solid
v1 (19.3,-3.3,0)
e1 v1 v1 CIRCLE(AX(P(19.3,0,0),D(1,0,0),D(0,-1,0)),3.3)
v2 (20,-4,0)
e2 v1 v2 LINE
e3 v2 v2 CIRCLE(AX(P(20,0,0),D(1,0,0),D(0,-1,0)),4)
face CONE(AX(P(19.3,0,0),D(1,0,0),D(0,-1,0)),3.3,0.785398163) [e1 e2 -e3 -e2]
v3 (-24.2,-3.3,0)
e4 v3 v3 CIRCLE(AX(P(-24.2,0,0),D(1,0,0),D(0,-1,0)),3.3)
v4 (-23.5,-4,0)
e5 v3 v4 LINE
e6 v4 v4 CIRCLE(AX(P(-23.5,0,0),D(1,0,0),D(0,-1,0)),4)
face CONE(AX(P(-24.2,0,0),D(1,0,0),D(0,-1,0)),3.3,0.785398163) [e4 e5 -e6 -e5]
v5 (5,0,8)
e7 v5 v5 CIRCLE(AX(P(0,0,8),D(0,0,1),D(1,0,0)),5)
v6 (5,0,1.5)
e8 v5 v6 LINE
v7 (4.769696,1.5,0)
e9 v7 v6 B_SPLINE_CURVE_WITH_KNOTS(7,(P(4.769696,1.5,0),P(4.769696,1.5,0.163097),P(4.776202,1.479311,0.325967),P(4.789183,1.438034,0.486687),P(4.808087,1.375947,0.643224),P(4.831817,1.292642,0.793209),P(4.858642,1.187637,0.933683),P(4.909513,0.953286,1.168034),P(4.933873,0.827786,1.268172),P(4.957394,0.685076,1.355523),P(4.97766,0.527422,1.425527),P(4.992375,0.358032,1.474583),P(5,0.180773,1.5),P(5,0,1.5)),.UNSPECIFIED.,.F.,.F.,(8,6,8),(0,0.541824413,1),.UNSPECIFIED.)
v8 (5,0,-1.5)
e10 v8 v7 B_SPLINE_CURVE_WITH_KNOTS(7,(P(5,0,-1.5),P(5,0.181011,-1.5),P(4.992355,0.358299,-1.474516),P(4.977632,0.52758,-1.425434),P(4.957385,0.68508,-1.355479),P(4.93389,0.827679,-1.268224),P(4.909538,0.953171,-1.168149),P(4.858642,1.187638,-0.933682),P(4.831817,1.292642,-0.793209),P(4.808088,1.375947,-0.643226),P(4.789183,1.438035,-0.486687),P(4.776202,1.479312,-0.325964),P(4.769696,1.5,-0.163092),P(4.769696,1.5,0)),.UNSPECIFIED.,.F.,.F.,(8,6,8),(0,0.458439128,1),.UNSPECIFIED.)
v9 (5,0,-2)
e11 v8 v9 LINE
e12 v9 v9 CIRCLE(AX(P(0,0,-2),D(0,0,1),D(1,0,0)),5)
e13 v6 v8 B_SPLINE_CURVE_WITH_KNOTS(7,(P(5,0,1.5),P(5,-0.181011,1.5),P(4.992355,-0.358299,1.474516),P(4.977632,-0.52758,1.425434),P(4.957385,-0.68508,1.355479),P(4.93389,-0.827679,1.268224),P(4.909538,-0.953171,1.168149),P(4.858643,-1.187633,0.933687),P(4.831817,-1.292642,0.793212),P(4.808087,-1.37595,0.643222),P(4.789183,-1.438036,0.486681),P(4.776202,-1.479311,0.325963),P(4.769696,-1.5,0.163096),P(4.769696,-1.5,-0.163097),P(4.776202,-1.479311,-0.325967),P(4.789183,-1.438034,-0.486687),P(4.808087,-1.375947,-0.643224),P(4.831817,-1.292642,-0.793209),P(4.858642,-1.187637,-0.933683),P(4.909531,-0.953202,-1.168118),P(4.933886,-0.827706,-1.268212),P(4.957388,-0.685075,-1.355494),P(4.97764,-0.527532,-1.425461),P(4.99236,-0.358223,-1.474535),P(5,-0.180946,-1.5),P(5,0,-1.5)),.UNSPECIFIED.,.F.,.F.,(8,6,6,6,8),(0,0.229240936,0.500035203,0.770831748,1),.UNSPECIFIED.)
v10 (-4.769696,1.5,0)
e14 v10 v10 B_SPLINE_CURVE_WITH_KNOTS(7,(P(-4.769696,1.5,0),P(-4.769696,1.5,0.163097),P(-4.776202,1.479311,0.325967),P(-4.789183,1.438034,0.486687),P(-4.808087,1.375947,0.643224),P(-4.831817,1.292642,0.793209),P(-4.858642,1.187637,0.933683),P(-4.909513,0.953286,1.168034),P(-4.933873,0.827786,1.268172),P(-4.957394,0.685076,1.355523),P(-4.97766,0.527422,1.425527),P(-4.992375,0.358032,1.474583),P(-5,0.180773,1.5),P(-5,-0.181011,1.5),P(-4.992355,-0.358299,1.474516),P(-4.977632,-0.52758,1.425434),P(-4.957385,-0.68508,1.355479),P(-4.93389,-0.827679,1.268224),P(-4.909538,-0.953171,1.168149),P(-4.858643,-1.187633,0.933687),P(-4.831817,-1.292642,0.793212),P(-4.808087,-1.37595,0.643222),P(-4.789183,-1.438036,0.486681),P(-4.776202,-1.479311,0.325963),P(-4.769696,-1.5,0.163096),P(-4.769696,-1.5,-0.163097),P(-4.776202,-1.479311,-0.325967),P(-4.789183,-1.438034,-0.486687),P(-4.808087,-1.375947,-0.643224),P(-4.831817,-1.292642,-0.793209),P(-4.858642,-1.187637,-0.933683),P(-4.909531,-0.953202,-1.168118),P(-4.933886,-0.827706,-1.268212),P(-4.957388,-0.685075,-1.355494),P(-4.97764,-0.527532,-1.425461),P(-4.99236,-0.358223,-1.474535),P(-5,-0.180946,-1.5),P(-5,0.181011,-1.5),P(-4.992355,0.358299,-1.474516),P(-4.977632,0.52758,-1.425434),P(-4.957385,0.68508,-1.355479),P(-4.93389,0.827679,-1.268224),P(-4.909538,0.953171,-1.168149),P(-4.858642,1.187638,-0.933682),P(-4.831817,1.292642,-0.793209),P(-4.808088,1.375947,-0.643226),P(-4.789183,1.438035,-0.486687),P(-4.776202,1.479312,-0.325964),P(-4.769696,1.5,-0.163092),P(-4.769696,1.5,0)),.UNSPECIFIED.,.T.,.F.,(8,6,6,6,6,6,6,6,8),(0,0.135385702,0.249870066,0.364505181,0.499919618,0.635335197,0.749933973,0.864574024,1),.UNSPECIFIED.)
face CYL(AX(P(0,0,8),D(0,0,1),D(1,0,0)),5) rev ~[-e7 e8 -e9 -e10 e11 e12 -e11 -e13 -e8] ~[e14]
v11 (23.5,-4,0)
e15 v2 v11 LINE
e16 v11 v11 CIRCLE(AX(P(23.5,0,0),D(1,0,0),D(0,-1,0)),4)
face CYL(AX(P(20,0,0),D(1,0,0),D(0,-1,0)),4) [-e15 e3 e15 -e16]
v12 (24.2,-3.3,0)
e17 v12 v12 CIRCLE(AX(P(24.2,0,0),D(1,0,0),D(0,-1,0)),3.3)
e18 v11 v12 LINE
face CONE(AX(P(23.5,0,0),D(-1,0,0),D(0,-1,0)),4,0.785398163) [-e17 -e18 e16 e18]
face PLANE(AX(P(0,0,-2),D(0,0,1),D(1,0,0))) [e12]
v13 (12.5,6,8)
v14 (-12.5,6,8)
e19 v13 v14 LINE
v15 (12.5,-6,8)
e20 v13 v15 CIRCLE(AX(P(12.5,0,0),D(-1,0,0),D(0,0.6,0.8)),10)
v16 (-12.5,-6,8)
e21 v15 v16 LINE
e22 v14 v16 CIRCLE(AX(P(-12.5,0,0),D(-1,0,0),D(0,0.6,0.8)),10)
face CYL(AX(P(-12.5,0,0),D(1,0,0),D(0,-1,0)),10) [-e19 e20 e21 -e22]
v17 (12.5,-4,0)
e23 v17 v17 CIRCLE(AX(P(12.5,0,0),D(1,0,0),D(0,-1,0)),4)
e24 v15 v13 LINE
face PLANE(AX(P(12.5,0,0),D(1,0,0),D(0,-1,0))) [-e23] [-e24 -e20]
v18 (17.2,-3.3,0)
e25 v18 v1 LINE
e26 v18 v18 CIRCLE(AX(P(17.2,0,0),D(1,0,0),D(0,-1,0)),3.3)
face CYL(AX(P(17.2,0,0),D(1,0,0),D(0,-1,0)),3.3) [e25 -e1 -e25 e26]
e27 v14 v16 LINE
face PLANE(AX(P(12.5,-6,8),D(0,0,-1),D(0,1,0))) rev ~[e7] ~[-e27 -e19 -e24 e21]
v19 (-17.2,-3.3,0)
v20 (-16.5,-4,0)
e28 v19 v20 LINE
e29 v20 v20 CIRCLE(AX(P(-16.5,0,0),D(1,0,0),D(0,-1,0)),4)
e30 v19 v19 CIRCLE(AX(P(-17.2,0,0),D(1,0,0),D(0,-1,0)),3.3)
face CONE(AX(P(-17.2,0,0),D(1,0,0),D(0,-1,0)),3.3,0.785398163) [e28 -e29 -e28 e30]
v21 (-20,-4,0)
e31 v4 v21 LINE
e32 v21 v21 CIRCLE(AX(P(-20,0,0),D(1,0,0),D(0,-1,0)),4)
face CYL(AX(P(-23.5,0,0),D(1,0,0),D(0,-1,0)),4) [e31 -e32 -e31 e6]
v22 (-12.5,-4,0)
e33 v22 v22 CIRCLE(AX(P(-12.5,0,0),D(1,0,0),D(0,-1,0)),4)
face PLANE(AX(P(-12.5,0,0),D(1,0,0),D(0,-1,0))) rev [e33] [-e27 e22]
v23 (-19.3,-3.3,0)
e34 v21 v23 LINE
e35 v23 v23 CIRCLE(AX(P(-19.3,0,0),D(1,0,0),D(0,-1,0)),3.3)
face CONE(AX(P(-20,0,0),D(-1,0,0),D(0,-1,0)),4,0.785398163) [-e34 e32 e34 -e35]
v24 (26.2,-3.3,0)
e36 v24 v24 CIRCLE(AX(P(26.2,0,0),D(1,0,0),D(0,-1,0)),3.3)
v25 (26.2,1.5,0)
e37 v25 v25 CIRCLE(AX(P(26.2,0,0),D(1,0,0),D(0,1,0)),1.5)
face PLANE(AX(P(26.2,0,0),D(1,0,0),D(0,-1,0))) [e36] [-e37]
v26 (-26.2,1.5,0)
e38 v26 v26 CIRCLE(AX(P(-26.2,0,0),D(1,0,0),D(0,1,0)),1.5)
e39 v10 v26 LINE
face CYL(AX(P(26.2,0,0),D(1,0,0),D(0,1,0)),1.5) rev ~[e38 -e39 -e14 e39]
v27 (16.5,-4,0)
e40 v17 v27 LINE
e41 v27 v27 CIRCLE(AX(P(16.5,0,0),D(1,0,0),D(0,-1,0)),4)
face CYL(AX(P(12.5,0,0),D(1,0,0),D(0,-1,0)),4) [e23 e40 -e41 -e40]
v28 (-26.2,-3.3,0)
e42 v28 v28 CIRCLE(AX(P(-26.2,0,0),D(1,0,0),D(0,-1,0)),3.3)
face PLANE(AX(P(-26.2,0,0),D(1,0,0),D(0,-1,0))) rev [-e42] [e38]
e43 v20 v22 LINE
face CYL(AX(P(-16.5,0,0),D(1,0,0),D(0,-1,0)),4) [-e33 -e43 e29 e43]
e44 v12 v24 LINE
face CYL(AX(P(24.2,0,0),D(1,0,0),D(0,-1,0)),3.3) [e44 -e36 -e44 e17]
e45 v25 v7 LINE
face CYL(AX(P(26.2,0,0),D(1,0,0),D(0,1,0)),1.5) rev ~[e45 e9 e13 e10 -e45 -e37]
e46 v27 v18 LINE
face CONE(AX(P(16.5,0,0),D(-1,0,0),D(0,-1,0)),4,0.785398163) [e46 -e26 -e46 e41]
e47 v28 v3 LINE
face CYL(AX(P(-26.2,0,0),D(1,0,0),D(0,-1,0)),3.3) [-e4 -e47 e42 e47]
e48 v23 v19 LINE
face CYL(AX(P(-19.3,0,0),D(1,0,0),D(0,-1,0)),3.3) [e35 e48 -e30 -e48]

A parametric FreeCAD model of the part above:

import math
import FreeCAD as App
import Part
import Sketcher
from FreeCAD import Vector
Q = App.Units.Quantity


def add_polygon(sketch, points):
    """Adds a closed chain of lines whose ends are joined by coincident constraints."""
    first, n = sketch.GeometryCount, len(points)
    for a, b in zip(points, points[1:] + points[:1]):
        sketch.addGeometry(Part.LineSegment(App.Vector(*a, 0), App.Vector(*b, 0)), False)
    for i in range(n):
        sketch.addConstraint(Sketcher.Constraint("Coincident", first + i, 2, first + (i + 1) % n, 1))

doc = App.newDocument("Part")
body = doc.addObject("PartDesign::Body", "Body")

sketch1 = body.newObject("Sketcher::SketchObject", "Sketch")
sketch1.AttachmentSupport = (doc.getObject("XY_Plane"), [""])
sketch1.MapMode = "FlatFace"
add_polygon(sketch1, [(-26.2, -3.3), (-24.2, -3.3), (-23.5, -4), (-20, -4), (-19.3, -3.3), (-17.2, -3.3), (-16.5, -4), (-12.5, -4), (-12.5, -10), (12.5, -10), (12.5, -4), (16.5, -4), (17.2, -3.3), (19.3, -3.3), (20, -4), (23.5, -4), (24.2, -3.3), (26.2, -3.3), (26.2, 0), (-26.2, 0)])
sketch1.addConstraint(Sketcher.Constraint("Horizontal", 0))
sketch1.addConstraint(Sketcher.Constraint("Horizontal", 2))
sketch1.addConstraint(Sketcher.Constraint("Horizontal", 4))
sketch1.addConstraint(Sketcher.Constraint("Horizontal", 6))
sketch1.addConstraint(Sketcher.Constraint("Vertical", 7))
sketch1.addConstraint(Sketcher.Constraint("Horizontal", 8))
sketch1.addConstraint(Sketcher.Constraint("Vertical", 9))
sketch1.addConstraint(Sketcher.Constraint("Horizontal", 10))
sketch1.addConstraint(Sketcher.Constraint("Horizontal", 12))
sketch1.addConstraint(Sketcher.Constraint("Horizontal", 14))
sketch1.addConstraint(Sketcher.Constraint("Horizontal", 16))
sketch1.addConstraint(Sketcher.Constraint("Vertical", 17))
sketch1.addConstraint(Sketcher.Constraint("Horizontal", 18))
sketch1.addConstraint(Sketcher.Constraint("Vertical", 19))
sketch1.addConstraint(Sketcher.Constraint("Symmetric", 17, 2, 18, 2, -1, 1))
sketch1.addConstraint(Sketcher.Constraint("Symmetric", 6, 2, 9, 2, -2))
sketch1.addConstraint(Sketcher.Constraint("Symmetric", 4, 2, 11, 2, -2))
sketch1.addConstraint(Sketcher.Constraint("Symmetric", 2, 2, 13, 2, -2))
sketch1.addConstraint(Sketcher.Constraint("Symmetric", 0, 2, 15, 2, -2))
sketch1.addConstraint(Sketcher.Constraint("Perpendicular", 1, 3))
sketch1.addConstraint(Sketcher.Constraint("Perpendicular", 3, 5))
sketch1.addConstraint(Sketcher.Constraint("Perpendicular", 5, 11))
sketch1.addConstraint(Sketcher.Constraint("Perpendicular", 11, 13))
sketch1.addConstraint(Sketcher.Constraint("Perpendicular", 13, 15))
sketch1.addConstraint(Sketcher.Constraint("Horizontal", 0, 2, 3, 2))
sketch1.addConstraint(Sketcher.Constraint("Horizontal", 2, 2, 5, 2))
sketch1.addConstraint(Sketcher.Constraint("Equal", 6, 10))
sketch1.addConstraint(Sketcher.Constraint("DistanceX", 0, 1, 0, 2, Q("2 mm")))
sketch1.addConstraint(Sketcher.Constraint("DistanceX", 6, 1, 6, 2, Q("4 mm")))
sketch1.addConstraint(Sketcher.Constraint("DistanceX", 8, 1, 8, 2, Q("25 mm")))
sketch1.addConstraint(Sketcher.Constraint("DistanceY", 7, 2, 7, 1, Q("6 mm")))
sketch1.addConstraint(Sketcher.Constraint("DistanceX", 2, 1, 2, 2, Q("3.5 mm")))
sketch1.addConstraint(Sketcher.Constraint("DistanceX", 4, 1, 4, 2, Q("2.1 mm")))
sketch1.addConstraint(Sketcher.Constraint("DistanceX", 18, 2, 18, 1, Q("52.4 mm")))
sketch1.addConstraint(Sketcher.Constraint("DistanceY", 17, 1, 17, 2, Q("3.3 mm")))
revolution = body.newObject("PartDesign::Revolution", "Revolution")
revolution.Profile = sketch1
revolution.ReferenceAxis = (sketch1, ["H_Axis"])
revolution.Angle = 360

sketch2 = body.newObject("Sketcher::SketchObject", "Sketch001")
sketch2.AttachmentSupport = (doc.getObject("YZ_Plane"), [""])
sketch2.MapMode = "FlatFace"
sketch2.AttachmentOffset = App.Placement(Vector(0, 0, 26.2), App.Rotation())
sketch2.addGeometry(Part.Circle(Vector(0, 0, 0), Vector(0, 0, 1), 1.5), False)
sketch2.addConstraint(Sketcher.Constraint("Coincident", 0, 3, -1, 1))
sketch2.addConstraint(Sketcher.Constraint("Diameter", 0, Q("3 mm")))
pocket1 = body.newObject("PartDesign::Pocket", "Pocket")
pocket1.Profile = sketch2
pocket1.Type = "ThroughAll"

sketch3 = body.newObject("Sketcher::SketchObject", "Sketch002")
sketch3.AttachmentSupport = (doc.getObject("YZ_Plane"), [""])
sketch3.MapMode = "FlatFace"
sketch3.AttachmentOffset = App.Placement(Vector(0, 0, 12.5), App.Rotation())
sketch3.addGeometry(Part.ArcOfCircle(Part.Circle(Vector(0, 0, 0), Vector(0, 0, 1), 10), math.radians(53), math.radians(127)), False)
sketch3.addGeometry(Part.LineSegment(Vector(-6, 8, 0), Vector(6, 8, 0)), False)
sketch3.addConstraint(Sketcher.Constraint("Coincident", 0, 1, 1, 2))
sketch3.addConstraint(Sketcher.Constraint("Coincident", 1, 1, 0, 2))
sketch3.addConstraint(Sketcher.Constraint("Horizontal", 1))
sketch3.addConstraint(Sketcher.Constraint("Coincident", 0, 3, -1, 1))
sketch3.addConstraint(Sketcher.Constraint("Radius", 0, Q("10 mm")))
sketch3.addConstraint(Sketcher.Constraint("DistanceX", 1, 1, 1, 2, Q("12 mm")))
pocket2 = body.newObject("PartDesign::Pocket", "Pocket001")
pocket2.Profile = sketch3
pocket2.Type = "ThroughAll"

sketch4 = body.newObject("Sketcher::SketchObject", "Sketch003")
sketch4.AttachmentSupport = (doc.getObject("XY_Plane"), [""])
sketch4.MapMode = "FlatFace"
sketch4.AttachmentOffset = App.Placement(Vector(0, 0, 8), App.Rotation())
sketch4.addGeometry(Part.Circle(Vector(0, 0, 0), Vector(0, 0, 1), 5), False)
sketch4.addConstraint(Sketcher.Constraint("Coincident", 0, 3, -1, 1))
sketch4.addConstraint(Sketcher.Constraint("Diameter", 0, Q("10 mm")))
pocket3 = body.newObject("PartDesign::Pocket", "Pocket002")
pocket3.Profile = sketch4
pocket3.Length = 10

doc.recompute()
